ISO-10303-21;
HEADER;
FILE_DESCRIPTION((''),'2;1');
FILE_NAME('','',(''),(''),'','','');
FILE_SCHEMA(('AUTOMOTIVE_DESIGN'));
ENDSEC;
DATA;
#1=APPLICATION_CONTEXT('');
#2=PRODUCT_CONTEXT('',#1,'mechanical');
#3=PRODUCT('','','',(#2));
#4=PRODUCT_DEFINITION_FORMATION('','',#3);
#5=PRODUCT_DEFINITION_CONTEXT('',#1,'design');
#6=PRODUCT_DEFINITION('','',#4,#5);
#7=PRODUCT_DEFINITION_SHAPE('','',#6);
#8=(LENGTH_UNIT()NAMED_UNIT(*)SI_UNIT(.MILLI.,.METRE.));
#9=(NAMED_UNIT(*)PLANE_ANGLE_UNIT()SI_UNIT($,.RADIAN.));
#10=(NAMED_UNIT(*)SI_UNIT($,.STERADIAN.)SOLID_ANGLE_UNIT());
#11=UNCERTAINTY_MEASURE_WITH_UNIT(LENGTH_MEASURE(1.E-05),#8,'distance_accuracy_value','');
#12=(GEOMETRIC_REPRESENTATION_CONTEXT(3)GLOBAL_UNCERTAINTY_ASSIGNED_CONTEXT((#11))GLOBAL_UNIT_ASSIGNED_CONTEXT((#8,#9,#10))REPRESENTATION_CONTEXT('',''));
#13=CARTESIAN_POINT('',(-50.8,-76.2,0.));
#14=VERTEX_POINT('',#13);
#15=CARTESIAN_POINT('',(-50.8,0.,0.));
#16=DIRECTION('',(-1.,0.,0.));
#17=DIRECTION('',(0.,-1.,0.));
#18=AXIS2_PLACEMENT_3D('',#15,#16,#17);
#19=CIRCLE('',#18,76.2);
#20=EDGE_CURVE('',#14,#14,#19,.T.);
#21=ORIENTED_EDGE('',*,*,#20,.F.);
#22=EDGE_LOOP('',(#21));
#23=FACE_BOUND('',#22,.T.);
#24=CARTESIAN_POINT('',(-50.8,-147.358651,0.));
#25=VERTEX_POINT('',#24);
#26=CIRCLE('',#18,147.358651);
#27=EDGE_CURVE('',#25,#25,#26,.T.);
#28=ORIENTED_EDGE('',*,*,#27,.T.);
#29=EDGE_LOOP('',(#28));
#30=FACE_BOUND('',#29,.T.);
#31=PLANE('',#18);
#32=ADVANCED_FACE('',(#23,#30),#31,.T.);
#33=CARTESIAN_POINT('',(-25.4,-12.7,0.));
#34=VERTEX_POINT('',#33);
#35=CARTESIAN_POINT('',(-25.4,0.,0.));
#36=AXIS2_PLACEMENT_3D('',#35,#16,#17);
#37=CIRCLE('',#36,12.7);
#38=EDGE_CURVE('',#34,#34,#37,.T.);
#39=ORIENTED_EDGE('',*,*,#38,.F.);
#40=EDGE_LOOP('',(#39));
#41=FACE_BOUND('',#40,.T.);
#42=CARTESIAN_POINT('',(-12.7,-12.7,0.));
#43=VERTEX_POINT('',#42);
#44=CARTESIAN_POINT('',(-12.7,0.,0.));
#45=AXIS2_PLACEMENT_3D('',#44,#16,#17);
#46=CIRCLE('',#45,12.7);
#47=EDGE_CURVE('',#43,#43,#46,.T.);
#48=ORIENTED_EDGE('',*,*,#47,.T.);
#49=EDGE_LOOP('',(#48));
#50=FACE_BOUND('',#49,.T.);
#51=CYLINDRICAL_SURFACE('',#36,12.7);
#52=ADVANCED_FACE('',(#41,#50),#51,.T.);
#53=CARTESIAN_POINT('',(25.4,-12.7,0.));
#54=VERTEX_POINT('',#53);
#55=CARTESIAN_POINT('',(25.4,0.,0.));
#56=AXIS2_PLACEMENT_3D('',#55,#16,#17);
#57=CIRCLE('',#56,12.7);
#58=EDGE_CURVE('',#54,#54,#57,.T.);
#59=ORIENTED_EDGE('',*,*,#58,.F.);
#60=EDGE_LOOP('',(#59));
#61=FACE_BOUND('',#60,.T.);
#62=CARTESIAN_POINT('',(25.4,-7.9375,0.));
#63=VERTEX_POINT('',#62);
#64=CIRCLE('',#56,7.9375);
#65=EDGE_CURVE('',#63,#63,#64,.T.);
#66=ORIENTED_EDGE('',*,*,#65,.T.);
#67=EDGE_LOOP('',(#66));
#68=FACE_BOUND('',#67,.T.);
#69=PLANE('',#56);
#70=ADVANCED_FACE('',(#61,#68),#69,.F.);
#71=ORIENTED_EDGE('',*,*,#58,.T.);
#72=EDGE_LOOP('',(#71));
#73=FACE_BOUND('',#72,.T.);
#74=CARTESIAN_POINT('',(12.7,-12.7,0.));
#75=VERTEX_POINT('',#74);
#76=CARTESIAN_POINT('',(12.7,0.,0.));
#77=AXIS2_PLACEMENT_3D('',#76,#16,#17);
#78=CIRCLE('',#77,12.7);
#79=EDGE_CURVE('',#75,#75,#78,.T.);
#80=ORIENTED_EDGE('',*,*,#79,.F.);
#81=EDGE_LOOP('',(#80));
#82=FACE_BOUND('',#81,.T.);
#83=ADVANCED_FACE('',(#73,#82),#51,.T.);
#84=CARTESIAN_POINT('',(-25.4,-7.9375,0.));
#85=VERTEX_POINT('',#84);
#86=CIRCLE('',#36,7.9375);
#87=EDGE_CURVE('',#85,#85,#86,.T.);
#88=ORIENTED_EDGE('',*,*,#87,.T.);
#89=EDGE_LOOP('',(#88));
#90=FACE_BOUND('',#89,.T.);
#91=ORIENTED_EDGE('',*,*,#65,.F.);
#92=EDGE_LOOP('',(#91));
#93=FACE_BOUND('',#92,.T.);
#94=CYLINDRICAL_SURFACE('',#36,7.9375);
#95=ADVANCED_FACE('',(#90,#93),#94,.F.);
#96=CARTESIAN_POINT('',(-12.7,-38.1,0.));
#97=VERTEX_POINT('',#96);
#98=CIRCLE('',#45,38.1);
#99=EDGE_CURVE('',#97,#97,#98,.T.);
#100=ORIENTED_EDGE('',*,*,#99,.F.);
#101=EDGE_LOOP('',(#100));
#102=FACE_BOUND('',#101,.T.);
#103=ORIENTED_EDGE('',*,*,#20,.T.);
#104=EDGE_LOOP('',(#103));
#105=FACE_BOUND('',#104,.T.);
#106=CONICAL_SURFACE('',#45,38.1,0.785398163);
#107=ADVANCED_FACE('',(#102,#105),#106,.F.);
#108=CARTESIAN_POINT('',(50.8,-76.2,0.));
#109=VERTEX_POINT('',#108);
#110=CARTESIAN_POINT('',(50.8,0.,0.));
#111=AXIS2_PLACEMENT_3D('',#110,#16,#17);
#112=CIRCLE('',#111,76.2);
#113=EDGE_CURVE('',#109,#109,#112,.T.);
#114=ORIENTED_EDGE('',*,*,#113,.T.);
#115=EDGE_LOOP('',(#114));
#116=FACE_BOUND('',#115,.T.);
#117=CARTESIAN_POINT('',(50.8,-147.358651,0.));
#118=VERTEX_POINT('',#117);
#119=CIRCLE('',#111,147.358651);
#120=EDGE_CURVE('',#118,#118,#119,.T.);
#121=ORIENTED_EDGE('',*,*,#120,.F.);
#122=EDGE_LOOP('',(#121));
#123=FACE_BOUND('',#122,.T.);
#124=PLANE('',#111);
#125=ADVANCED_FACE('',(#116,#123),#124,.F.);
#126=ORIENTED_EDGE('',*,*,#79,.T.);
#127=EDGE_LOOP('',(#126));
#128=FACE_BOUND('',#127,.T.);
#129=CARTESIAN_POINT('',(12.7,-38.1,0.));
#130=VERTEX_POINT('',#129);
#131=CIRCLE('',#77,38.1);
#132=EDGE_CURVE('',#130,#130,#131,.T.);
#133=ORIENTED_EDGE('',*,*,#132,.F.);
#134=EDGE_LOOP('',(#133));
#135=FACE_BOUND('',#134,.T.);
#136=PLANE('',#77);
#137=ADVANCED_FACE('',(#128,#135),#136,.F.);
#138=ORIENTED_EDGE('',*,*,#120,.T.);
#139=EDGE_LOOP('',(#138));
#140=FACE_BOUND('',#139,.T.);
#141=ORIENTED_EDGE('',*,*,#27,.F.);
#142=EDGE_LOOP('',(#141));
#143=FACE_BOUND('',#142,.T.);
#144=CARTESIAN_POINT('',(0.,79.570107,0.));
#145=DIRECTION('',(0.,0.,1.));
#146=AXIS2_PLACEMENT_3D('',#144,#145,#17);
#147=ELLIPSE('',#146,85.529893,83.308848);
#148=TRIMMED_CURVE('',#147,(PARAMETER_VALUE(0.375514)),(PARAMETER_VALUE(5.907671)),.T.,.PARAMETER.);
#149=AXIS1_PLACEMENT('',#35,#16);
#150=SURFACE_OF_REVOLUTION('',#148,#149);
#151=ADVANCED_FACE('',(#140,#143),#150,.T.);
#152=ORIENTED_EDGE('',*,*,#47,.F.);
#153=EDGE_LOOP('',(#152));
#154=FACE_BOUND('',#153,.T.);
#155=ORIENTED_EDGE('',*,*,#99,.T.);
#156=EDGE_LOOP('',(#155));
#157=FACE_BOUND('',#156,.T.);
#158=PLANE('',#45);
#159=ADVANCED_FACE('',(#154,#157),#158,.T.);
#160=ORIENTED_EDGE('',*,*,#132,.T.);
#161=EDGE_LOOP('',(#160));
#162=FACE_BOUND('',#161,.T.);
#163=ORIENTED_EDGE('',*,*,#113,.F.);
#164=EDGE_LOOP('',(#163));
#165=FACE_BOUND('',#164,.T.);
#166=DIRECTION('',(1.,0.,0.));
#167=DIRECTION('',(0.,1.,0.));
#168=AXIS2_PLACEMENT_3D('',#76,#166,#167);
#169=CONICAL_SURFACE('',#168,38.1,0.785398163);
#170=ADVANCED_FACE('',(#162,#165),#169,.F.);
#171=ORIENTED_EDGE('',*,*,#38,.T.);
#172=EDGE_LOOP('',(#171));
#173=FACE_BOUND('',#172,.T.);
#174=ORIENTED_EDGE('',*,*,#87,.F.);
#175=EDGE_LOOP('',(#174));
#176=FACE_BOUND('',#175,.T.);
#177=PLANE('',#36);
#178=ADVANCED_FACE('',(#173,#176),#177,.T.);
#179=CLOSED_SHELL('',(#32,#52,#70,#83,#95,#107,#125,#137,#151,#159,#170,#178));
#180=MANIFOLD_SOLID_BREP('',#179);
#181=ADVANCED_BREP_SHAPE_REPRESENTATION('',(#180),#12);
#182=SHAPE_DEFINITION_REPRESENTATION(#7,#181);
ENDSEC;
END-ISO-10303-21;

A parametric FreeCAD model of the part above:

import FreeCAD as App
import Part
import Sketcher
Q = App.Units.Quantity

doc = App.newDocument("Part")
params = doc.addObject("Spreadsheet::Sheet", "Params")
for row, (alias, value) in enumerate([
    ("sketch1_width", "2 in"),
    ("sketch1_height", "1 in"),
    ("sketch1_width2", "0.5 in"),
    ("sketch1_height2", "0.1875 in"),
    ("revolution_angle", "360 deg"),
], start=1):
    params.set(f"A{row}", alias)
    params.set(f"B{row}", "=" + value)
    params.setAlias(f"B{row}", alias)

body = doc.addObject("PartDesign::Body", "Body")

sketch1 = body.newObject("Sketcher::SketchObject", "Sketch")
sketch1.AttachmentSupport = (doc.getObject("XY_Plane"), [""])
sketch1.MapMode = "FlatFace"
sketch1.addGeometry([
    Part.LineSegment(App.Vector(50.8, 76.2, 0), App.Vector(50.8, 147.358651, 0)),
    Part.BSplineCurve([App.Vector(50.8, 147.358651, 0), App.Vector(0, 187.484544, 0), App.Vector(-50.8, 147.358651, 0)], [3, 3], [2.485810722, 3.797374586], False, 2, [1, 0.792571365, 1], False),
    Part.LineSegment(App.Vector(-50.8, 147.358651, 0), App.Vector(-50.8, 76.2, 0)),
    Part.LineSegment(App.Vector(-50.8, 76.2, 0), App.Vector(-12.7, 38.1, 0)),
    Part.LineSegment(App.Vector(-12.7, 38.1, 0), App.Vector(-12.7, 12.7, 0)),
    Part.LineSegment(App.Vector(-12.7, 12.7, 0), App.Vector(-25.4, 12.7, 0)),
    Part.LineSegment(App.Vector(-25.4, 12.7, 0), App.Vector(-25.4, 7.9375, 0)),
    Part.LineSegment(App.Vector(-25.4, 7.9375, 0), App.Vector(25.4, 7.9375, 0)),
    Part.LineSegment(App.Vector(25.4, 7.9375, 0), App.Vector(25.4, 12.7, 0)),
    Part.LineSegment(App.Vector(25.4, 12.7, 0), App.Vector(12.7, 12.7, 0)),
    Part.LineSegment(App.Vector(12.7, 12.7, 0), App.Vector(12.7, 38.1, 0)),
    Part.LineSegment(App.Vector(12.7, 38.1, 0), App.Vector(50.8, 76.2, 0)),
], False)
sketch1.addConstraint([
    Sketcher.Constraint("Block", 1),
    Sketcher.Constraint("Coincident", 0, 2, 1, 1),
    Sketcher.Constraint("Coincident", 1, 2, 2, 1),
    Sketcher.Constraint("Coincident", 2, 2, 3, 1),
    Sketcher.Constraint("Coincident", 3, 2, 4, 1),
    Sketcher.Constraint("Coincident", 4, 2, 5, 1),
    Sketcher.Constraint("Coincident", 5, 2, 6, 1),
    Sketcher.Constraint("Coincident", 6, 2, 7, 1),
    Sketcher.Constraint("Coincident", 7, 2, 8, 1),
    Sketcher.Constraint("Coincident", 8, 2, 9, 1),
    Sketcher.Constraint("Coincident", 9, 2, 10, 1),
    Sketcher.Constraint("Coincident", 10, 2, 11, 1),
    Sketcher.Constraint("Coincident", 11, 2, 0, 1),
    Sketcher.Constraint("Vertical", 0),
    Sketcher.Constraint("Vertical", 2),
    Sketcher.Constraint("Vertical", 4),
    Sketcher.Constraint("Horizontal", 5),
    Sketcher.Constraint("Vertical", 6),
    Sketcher.Constraint("Horizontal", 7),
    Sketcher.Constraint("Vertical", 8),
    Sketcher.Constraint("Horizontal", 9),
    Sketcher.Constraint("Vertical", 10),
    Sketcher.Constraint("Symmetric", 5, 2, 8, 2, -2),
    Sketcher.Constraint("Symmetric", 3, 2, 10, 2, -2),
    Sketcher.Constraint("Perpendicular", 3, 11),
    Sketcher.Constraint("Horizontal", 2, 2, 11, 2),
    Sketcher.Constraint("DistanceX", 7, 1, 7, 2, Q("2 in")),
    Sketcher.Constraint("DistanceY", 4, 2, 4, 1, Q("1 in")),
    Sketcher.Constraint("DistanceX", 5, 2, 5, 1, Q("0.5 in")),
    Sketcher.Constraint("DistanceY", -1, 1, 2, 2, Q("3 in")),
    Sketcher.Constraint("DistanceY", 6, 2, 6, 1, Q("0.1875 in")),
])
sketch1.setExpression("Constraints[26]", "Params.sketch1_width")
sketch1.setExpression("Constraints[27]", "Params.sketch1_height")
sketch1.setExpression("Constraints[28]", "Params.sketch1_width2")
sketch1.setExpression("Constraints[30]", "Params.sketch1_height2")
revolution = body.newObject("PartDesign::Revolution", "Revolution")
revolution.Profile = sketch1
revolution.ReferenceAxis = (sketch1, ["H_Axis"])
revolution.setExpression("Angle", "Params.revolution_angle")

doc.recompute()
